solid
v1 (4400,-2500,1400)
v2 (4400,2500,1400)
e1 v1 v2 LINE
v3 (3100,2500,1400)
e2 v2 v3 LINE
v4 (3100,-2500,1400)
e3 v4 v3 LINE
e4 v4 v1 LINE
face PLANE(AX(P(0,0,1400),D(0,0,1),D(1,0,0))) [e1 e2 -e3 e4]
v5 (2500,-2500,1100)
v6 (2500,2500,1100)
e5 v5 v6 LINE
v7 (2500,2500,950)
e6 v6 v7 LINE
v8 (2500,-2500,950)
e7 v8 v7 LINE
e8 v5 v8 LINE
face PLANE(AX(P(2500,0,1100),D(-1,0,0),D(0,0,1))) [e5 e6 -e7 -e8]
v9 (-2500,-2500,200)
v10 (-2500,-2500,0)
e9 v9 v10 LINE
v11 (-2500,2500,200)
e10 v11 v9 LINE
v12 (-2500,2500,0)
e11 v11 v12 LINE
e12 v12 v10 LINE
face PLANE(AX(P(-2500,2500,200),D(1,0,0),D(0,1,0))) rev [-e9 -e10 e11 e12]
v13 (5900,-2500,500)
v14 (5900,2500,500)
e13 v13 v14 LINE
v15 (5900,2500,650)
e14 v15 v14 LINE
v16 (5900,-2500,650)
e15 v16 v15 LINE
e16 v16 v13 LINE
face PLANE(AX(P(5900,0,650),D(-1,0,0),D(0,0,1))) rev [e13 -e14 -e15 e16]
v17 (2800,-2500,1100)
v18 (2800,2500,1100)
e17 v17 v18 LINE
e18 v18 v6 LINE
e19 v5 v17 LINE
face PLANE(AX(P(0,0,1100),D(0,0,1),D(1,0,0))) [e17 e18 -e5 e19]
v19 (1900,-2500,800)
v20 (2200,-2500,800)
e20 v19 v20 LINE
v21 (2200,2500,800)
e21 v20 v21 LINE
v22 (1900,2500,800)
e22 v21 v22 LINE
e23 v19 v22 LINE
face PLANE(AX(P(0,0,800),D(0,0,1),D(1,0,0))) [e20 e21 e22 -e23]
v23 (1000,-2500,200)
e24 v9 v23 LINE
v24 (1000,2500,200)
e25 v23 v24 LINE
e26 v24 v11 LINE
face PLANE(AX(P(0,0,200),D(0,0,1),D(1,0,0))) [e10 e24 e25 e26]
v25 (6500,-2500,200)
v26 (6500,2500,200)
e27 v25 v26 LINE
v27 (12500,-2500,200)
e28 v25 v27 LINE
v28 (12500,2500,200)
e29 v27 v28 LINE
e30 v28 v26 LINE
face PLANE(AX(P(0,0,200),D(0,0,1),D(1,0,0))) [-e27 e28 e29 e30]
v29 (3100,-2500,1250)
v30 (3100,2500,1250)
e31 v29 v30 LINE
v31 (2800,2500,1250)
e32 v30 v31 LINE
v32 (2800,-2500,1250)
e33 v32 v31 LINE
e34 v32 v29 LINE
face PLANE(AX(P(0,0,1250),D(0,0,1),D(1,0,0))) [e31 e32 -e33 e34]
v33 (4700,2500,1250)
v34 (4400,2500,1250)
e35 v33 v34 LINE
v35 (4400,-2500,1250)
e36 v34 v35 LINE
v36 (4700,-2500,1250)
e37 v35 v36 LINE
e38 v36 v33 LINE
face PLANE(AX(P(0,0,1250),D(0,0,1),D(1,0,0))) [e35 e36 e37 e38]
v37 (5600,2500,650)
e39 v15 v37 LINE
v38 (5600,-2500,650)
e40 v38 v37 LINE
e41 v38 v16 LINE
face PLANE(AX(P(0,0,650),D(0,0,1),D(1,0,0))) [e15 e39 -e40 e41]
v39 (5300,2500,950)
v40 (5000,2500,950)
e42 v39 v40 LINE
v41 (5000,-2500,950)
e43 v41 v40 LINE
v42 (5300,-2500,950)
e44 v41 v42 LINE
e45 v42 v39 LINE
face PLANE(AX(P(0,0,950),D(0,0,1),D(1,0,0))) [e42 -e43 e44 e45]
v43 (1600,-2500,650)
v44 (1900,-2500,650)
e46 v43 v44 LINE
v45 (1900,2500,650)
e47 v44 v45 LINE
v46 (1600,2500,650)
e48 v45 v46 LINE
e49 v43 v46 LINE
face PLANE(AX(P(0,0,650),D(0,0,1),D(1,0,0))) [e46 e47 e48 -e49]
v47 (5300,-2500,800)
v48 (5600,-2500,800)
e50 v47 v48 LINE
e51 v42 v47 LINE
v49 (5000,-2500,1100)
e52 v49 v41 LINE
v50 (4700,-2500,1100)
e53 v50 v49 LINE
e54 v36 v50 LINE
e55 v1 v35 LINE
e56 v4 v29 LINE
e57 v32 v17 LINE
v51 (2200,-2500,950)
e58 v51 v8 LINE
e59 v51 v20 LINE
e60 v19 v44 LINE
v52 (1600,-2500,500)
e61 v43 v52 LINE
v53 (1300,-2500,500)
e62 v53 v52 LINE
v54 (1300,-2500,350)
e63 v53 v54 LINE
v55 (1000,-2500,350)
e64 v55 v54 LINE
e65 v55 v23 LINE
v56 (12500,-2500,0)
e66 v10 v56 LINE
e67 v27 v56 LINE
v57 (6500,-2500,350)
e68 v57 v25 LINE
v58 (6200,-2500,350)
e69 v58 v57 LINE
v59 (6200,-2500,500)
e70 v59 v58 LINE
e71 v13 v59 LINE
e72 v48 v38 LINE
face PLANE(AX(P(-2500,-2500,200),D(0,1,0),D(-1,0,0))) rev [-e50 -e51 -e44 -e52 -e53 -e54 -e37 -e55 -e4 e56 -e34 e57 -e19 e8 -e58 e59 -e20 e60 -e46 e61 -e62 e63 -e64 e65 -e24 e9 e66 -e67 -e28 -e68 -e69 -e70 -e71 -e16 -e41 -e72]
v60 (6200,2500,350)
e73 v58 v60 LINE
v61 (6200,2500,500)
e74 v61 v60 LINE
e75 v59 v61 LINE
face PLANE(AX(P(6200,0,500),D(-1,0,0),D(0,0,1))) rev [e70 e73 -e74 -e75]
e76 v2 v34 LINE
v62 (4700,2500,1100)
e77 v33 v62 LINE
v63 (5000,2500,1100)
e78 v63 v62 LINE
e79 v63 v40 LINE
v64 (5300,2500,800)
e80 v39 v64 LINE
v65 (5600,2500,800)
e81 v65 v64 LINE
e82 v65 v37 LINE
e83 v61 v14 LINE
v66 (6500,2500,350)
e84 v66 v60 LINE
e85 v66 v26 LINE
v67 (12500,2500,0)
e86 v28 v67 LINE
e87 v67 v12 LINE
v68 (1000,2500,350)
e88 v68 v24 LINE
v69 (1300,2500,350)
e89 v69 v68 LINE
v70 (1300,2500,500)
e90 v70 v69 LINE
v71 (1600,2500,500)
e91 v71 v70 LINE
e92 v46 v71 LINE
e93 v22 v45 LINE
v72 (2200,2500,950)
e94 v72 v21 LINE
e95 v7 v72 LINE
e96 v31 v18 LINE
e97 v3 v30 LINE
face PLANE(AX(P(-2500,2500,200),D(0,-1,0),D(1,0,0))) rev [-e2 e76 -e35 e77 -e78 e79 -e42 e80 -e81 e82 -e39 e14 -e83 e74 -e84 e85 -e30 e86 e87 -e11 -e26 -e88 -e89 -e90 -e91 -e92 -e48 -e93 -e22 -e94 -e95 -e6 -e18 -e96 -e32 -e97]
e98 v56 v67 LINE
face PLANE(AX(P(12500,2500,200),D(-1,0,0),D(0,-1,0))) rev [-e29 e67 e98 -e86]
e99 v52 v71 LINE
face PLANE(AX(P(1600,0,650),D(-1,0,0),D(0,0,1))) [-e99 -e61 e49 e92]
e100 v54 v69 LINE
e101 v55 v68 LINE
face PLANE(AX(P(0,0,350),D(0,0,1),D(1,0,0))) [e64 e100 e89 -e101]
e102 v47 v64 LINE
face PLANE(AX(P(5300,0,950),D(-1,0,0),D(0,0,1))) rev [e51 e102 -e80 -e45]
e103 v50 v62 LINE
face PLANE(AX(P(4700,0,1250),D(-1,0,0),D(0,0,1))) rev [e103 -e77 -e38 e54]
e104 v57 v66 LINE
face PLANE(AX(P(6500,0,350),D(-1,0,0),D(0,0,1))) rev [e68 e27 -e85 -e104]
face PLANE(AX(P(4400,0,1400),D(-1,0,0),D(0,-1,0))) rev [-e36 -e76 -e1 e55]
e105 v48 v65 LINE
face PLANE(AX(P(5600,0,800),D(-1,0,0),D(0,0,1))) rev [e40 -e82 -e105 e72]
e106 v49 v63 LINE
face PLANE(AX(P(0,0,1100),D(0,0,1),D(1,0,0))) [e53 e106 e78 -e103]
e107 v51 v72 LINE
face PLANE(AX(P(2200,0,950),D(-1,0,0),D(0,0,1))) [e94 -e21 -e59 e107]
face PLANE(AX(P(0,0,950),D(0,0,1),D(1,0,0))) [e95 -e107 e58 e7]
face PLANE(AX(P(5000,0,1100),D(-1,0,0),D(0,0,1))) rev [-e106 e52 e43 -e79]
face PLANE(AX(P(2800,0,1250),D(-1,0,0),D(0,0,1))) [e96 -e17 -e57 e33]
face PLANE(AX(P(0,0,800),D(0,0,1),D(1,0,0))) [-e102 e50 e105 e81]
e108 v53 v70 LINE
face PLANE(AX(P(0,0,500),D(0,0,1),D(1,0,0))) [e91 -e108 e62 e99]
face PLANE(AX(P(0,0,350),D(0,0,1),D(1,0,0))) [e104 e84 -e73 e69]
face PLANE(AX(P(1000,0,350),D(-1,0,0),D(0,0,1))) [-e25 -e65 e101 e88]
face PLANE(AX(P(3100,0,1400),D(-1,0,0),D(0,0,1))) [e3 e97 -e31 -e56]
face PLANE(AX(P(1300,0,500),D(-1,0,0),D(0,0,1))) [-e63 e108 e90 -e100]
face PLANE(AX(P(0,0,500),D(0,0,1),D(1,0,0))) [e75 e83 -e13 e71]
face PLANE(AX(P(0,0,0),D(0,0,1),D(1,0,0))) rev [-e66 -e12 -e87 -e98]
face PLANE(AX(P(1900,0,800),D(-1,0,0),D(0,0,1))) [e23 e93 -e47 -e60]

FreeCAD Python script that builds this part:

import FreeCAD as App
import Part
import Sketcher
Q = App.Units.Quantity


def add_polygon(sketch, points):
    """Adds a closed chain of lines whose ends are joined by coincident constraints."""
    first, n = sketch.GeometryCount, len(points)
    for a, b in zip(points, points[1:] + points[:1]):
        sketch.addGeometry(Part.LineSegment(App.Vector(*a, 0), App.Vector(*b, 0)), False)
    for i in range(n):
        sketch.addConstraint(Sketcher.Constraint("Coincident", first + i, 2, first + (i + 1) % n, 1))

doc = App.newDocument("Part")
body = doc.addObject("PartDesign::Body", "Body")

# Sketch on XY plane
sketch1 = doc.addObject("Sketcher::SketchObject", "Sketch")
body.addObject(sketch1)
sketch1.AttachmentSupport = (doc.XY_Plane, [""])
sketch1.MapMode = "FlatFace"
add_polygon(sketch1, [(-2500, 2500), (-2500, -2500), (12500, -2500), (12500, 2500)])  # lines 0-3
sketch1.addConstraint(Sketcher.Constraint("Vertical", 0))
sketch1.addConstraint(Sketcher.Constraint("Horizontal", 1))
sketch1.addConstraint(Sketcher.Constraint("Vertical", 2))
sketch1.addConstraint(Sketcher.Constraint("Horizontal", 3))
sketch1.addConstraint(Sketcher.Constraint("DistanceX", 1, 1, 1, 2, Q("15000 mm")))
sketch1.addConstraint(Sketcher.Constraint("DistanceY", 0, 2, 0, 1, Q("5000 mm")))
sketch1.addConstraint(Sketcher.Constraint("DistanceX", 0, 2, -1, 1, Q("2500 mm")))
sketch1.addConstraint(Sketcher.Constraint("DistanceY", 0, 2, -1, 1, Q("2500 mm")))
pad1 = doc.addObject("PartDesign::Pad", "Pad")
body.addObject(pad1)
pad1.Profile = sketch1
pad1.Length = 200

# Sketch on XY plane
sketch2 = doc.addObject("Sketcher::SketchObject", "Sketch001")
body.addObject(sketch2)
sketch2.AttachmentSupport = (doc.XY_Plane, [""])
sketch2.MapMode = "FlatFace"
sketch2.AttachmentOffset = App.Placement(App.Vector(0, 0, 200), App.Rotation())
add_polygon(sketch2, [(1000, 2500), (1000, -2500), (1300, -2500), (1300, 2500)])  # lines 0-3
sketch2.addConstraint(Sketcher.Constraint("Vertical", 0))
sketch2.addConstraint(Sketcher.Constraint("Horizontal", 1))
sketch2.addConstraint(Sketcher.Constraint("Vertical", 2))
sketch2.addConstraint(Sketcher.Constraint("Horizontal", 3))
sketch2.addConstraint(Sketcher.Constraint("DistanceX", 1, 1, 1, 2, Q("300 mm")))
sketch2.addConstraint(Sketcher.Constraint("DistanceY", 0, 2, 0, 1, Q("5000 mm")))
sketch2.addConstraint(Sketcher.Constraint("DistanceX", -1, 1, 0, 2, Q("1000 mm")))
sketch2.addConstraint(Sketcher.Constraint("DistanceY", 0, 2, -1, 1, Q("2500 mm")))
pad2 = doc.addObject("PartDesign::Pad", "Pad001")
body.addObject(pad2)
pad2.Profile = sketch2
pad2.Length = 150

# Sketch on XY plane
sketch3 = doc.addObject("Sketcher::SketchObject", "Sketch002")
body.addObject(sketch3)
sketch3.AttachmentSupport = (doc.XY_Plane, [""])
sketch3.MapMode = "FlatFace"
sketch3.AttachmentOffset = App.Placement(App.Vector(0, 0, 200), App.Rotation())
add_polygon(sketch3, [(1300, 2500), (1300, -2500), (1600, -2500), (1600, 2500)])  # lines 0-3
sketch3.addConstraint(Sketcher.Constraint("Vertical", 0))
sketch3.addConstraint(Sketcher.Constraint("Horizontal", 1))
sketch3.addConstraint(Sketcher.Constraint("Vertical", 2))
sketch3.addConstraint(Sketcher.Constraint("Horizontal", 3))
sketch3.addConstraint(Sketcher.Constraint("DistanceX", 1, 1, 1, 2, Q("300 mm")))
sketch3.addConstraint(Sketcher.Constraint("DistanceY", 0, 2, 0, 1, Q("5000 mm")))
sketch3.addConstraint(Sketcher.Constraint("DistanceX", -1, 1, 0, 2, Q("1300 mm")))
sketch3.addConstraint(Sketcher.Constraint("DistanceY", 0, 2, -1, 1, Q("2500 mm")))
pad3 = doc.addObject("PartDesign::Pad", "Pad002")
body.addObject(pad3)
pad3.Profile = sketch3
pad3.Length = 300

# Sketch on XY plane
sketch4 = doc.addObject("Sketcher::SketchObject", "Sketch003")
body.addObject(sketch4)
sketch4.AttachmentSupport = (doc.XY_Plane, [""])
sketch4.MapMode = "FlatFace"
sketch4.AttachmentOffset = App.Placement(App.Vector(0, 0, 200), App.Rotation())
add_polygon(sketch4, [(1600, 2500), (1600, -2500), (1900, -2500), (1900, 2500)])  # lines 0-3
sketch4.addConstraint(Sketcher.Constraint("Vertical", 0))
sketch4.addConstraint(Sketcher.Constraint("Horizontal", 1))
sketch4.addConstraint(Sketcher.Constraint("Vertical", 2))
sketch4.addConstraint(Sketcher.Constraint("Horizontal", 3))
sketch4.addConstraint(Sketcher.Constraint("DistanceX", 1, 1, 1, 2, Q("300 mm")))
sketch4.addConstraint(Sketcher.Constraint("DistanceY", 0, 2, 0, 1, Q("5000 mm")))
sketch4.addConstraint(Sketcher.Constraint("DistanceX", -1, 1, 0, 2, Q("1600 mm")))
sketch4.addConstraint(Sketcher.Constraint("DistanceY", 0, 2, -1, 1, Q("2500 mm")))
pad4 = doc.addObject("PartDesign::Pad", "Pad003")
body.addObject(pad4)
pad4.Profile = sketch4
pad4.Length = 450

# Sketch on XY plane
sketch5 = doc.addObject("Sketcher::SketchObject", "Sketch004")
body.addObject(sketch5)
sketch5.AttachmentSupport = (doc.XY_Plane, [""])
sketch5.MapMode = "FlatFace"
sketch5.AttachmentOffset = App.Placement(App.Vector(0, 0, 200), App.Rotation())
add_polygon(sketch5, [(1900, 2500), (1900, -2500), (2200, -2500), (2200, 2500)])  # lines 0-3
sketch5.addConstraint(Sketcher.Constraint("Vertical", 0))
sketch5.addConstraint(Sketcher.Constraint("Horizontal", 1))
sketch5.addConstraint(Sketcher.Constraint("Vertical", 2))
sketch5.addConstraint(Sketcher.Constraint("Horizontal", 3))
sketch5.addConstraint(Sketcher.Constraint("DistanceX", 1, 1, 1, 2, Q("300 mm")))
sketch5.addConstraint(Sketcher.Constraint("DistanceY", 0, 2, 0, 1, Q("5000 mm")))
sketch5.addConstraint(Sketcher.Constraint("DistanceX", -1, 1, 0, 2, Q("1900 mm")))
sketch5.addConstraint(Sketcher.Constraint("DistanceY", 0, 2, -1, 1, Q("2500 mm")))
pad5 = doc.addObject("PartDesign::Pad", "Pad004")
body.addObject(pad5)
pad5.Profile = sketch5
pad5.Length = 600

# Sketch on XY plane
sketch6 = doc.addObject("Sketcher::SketchObject", "Sketch005")
body.addObject(sketch6)
sketch6.AttachmentSupport = (doc.XY_Plane, [""])
sketch6.MapMode = "FlatFace"
sketch6.AttachmentOffset = App.Placement(App.Vector(0, 0, 200), App.Rotation())
add_polygon(sketch6, [(2200, 2500), (2200, -2500), (2500, -2500), (2500, 2500)])  # lines 0-3
sketch6.addConstraint(Sketcher.Constraint("Vertical", 0))
sketch6.addConstraint(Sketcher.Constraint("Horizontal", 1))
sketch6.addConstraint(Sketcher.Constraint("Vertical", 2))
sketch6.addConstraint(Sketcher.Constraint("Horizontal", 3))
sketch6.addConstraint(Sketcher.Constraint("DistanceX", 1, 1, 1, 2, Q("300 mm")))
sketch6.addConstraint(Sketcher.Constraint("DistanceY", 0, 2, 0, 1, Q("5000 mm")))
sketch6.addConstraint(Sketcher.Constraint("DistanceX", -1, 1, 0, 2, Q("2200 mm")))
sketch6.addConstraint(Sketcher.Constraint("DistanceY", 0, 2, -1, 1, Q("2500 mm")))
pad6 = doc.addObject("PartDesign::Pad", "Pad005")
body.addObject(pad6)
pad6.Profile = sketch6
pad6.Length = 750

# Sketch on XY plane
sketch7 = doc.addObject("Sketcher::SketchObject", "Sketch006")
body.addObject(sketch7)
sketch7.AttachmentSupport = (doc.XY_Plane, [""])
sketch7.MapMode = "FlatFace"
sketch7.AttachmentOffset = App.Placement(App.Vector(0, 0, 200), App.Rotation())
add_polygon(sketch7, [(2500, 2500), (2500, -2500), (2800, -2500), (2800, 2500)])  # lines 0-3
sketch7.addConstraint(Sketcher.Constraint("Vertical", 0))
sketch7.addConstraint(Sketcher.Constraint("Horizontal", 1))
sketch7.addConstraint(Sketcher.Constraint("Vertical", 2))
sketch7.addConstraint(Sketcher.Constraint("Horizontal", 3))
sketch7.addConstraint(Sketcher.Constraint("DistanceX", 1, 1, 1, 2, Q("300 mm")))
sketch7.addConstraint(Sketcher.Constraint("DistanceY", 0, 2, 0, 1, Q("5000 mm")))
sketch7.addConstraint(Sketcher.Constraint("DistanceX", -1, 1, 0, 2, Q("2500 mm")))
sketch7.addConstraint(Sketcher.Constraint("DistanceY", 0, 2, -1, 1, Q("2500 mm")))
pad7 = doc.addObject("PartDesign::Pad", "Pad006")
body.addObject(pad7)
pad7.Profile = sketch7
pad7.Length = 900

# Sketch on XY plane
sketch8 = doc.addObject("Sketcher::SketchObject", "Sketch007")
body.addObject(sketch8)
sketch8.AttachmentSupport = (doc.XY_Plane, [""])
sketch8.MapMode = "FlatFace"
sketch8.AttachmentOffset = App.Placement(App.Vector(0, 0, 200), App.Rotation())
add_polygon(sketch8, [(2800, 2500), (2800, -2500), (3100, -2500), (3100, 2500)])  # lines 0-3
sketch8.addConstraint(Sketcher.Constraint("Vertical", 0))
sketch8.addConstraint(Sketcher.Constraint("Horizontal", 1))
sketch8.addConstraint(Sketcher.Constraint("Vertical", 2))
sketch8.addConstraint(Sketcher.Constraint("Horizontal", 3))
sketch8.addConstraint(Sketcher.Constraint("DistanceX", 1, 1, 1, 2, Q("300 mm")))
sketch8.addConstraint(Sketcher.Constraint("DistanceY", 0, 2, 0, 1, Q("5000 mm")))
sketch8.addConstraint(Sketcher.Constraint("DistanceX", -1, 1, 0, 2, Q("2800 mm")))
sketch8.addConstraint(Sketcher.Constraint("DistanceY", 0, 2, -1, 1, Q("2500 mm")))
pad8 = doc.addObject("PartDesign::Pad", "Pad007")
body.addObject(pad8)
pad8.Profile = sketch8
pad8.Length = 1050

# Sketch on XY plane
sketch9 = doc.addObject("Sketcher::SketchObject", "Sketch008")
body.addObject(sketch9)
sketch9.AttachmentSupport = (doc.XY_Plane, [""])
sketch9.MapMode = "FlatFace"
sketch9.AttachmentOffset = App.Placement(App.Vector(0, 0, 200), App.Rotation())
add_polygon(sketch9, [(3100, 2500), (3100, -2500), (3400, -2500), (3400, 2500)])  # lines 0-3
sketch9.addConstraint(Sketcher.Constraint("Vertical", 0))
sketch9.addConstraint(Sketcher.Constraint("Horizontal", 1))
sketch9.addConstraint(Sketcher.Constraint("Vertical", 2))
sketch9.addConstraint(Sketcher.Constraint("Horizontal", 3))
sketch9.addConstraint(Sketcher.Constraint("DistanceX", 1, 1, 1, 2, Q("300 mm")))
sketch9.addConstraint(Sketcher.Constraint("DistanceY", 0, 2, 0, 1, Q("5000 mm")))
sketch9.addConstraint(Sketcher.Constraint("DistanceX", -1, 1, 0, 2, Q("3100 mm")))
sketch9.addConstraint(Sketcher.Constraint("DistanceY", 0, 2, -1, 1, Q("2500 mm")))
pad9 = doc.addObject("PartDesign::Pad", "Pad008")
body.addObject(pad9)
pad9.Profile = sketch9
pad9.Length = 1200

# Sketch on XY plane
sketch10 = doc.addObject("Sketcher::SketchObject", "Sketch009")
body.addObject(sketch10)
sketch10.AttachmentSupport = (doc.XY_Plane, [""])
sketch10.MapMode = "FlatFace"
sketch10.AttachmentOffset = App.Placement(App.Vector(0, 0, 200), App.Rotation())
add_polygon(sketch10, [(3400, 2500), (3400, -2500), (4400, -2500), (4400, 2500)])  # lines 0-3
sketch10.addConstraint(Sketcher.Constraint("Vertical", 0))
sketch10.addConstraint(Sketcher.Constraint("Horizontal", 1))
sketch10.addConstraint(Sketcher.Constraint("Vertical", 2))
sketch10.addConstraint(Sketcher.Constraint("Horizontal", 3))
sketch10.addConstraint(Sketcher.Constraint("DistanceX", 1, 1, 1, 2, Q("1000 mm")))
sketch10.addConstraint(Sketcher.Constraint("DistanceY", 0, 2, 0, 1, Q("5000 mm")))
sketch10.addConstraint(Sketcher.Constraint("DistanceX", -1, 1, 0, 2, Q("3400 mm")))
sketch10.addConstraint(Sketcher.Constraint("DistanceY", 0, 2, -1, 1, Q("2500 mm")))
pad10 = doc.addObject("PartDesign::Pad", "Pad009")
body.addObject(pad10)
pad10.Profile = sketch10
pad10.Length = 1200

# Sketch on XY plane
sketch11 = doc.addObject("Sketcher::SketchObject", "Sketch010")
body.addObject(sketch11)
sketch11.AttachmentSupport = (doc.XY_Plane, [""])
sketch11.MapMode = "FlatFace"
sketch11.AttachmentOffset = App.Placement(App.Vector(0, 0, 200), App.Rotation())
add_polygon(sketch11, [(4400, 2500), (4400, -2500), (4700, -2500), (4700, 2500)])  # lines 0-3
sketch11.addConstraint(Sketcher.Constraint("Vertical", 0))
sketch11.addConstraint(Sketcher.Constraint("Horizontal", 1))
sketch11.addConstraint(Sketcher.Constraint("Vertical", 2))
sketch11.addConstraint(Sketcher.Constraint("Horizontal", 3))
sketch11.addConstraint(Sketcher.Constraint("DistanceX", 1, 1, 1, 2, Q("300 mm")))
sketch11.addConstraint(Sketcher.Constraint("DistanceY", 0, 2, 0, 1, Q("5000 mm")))
sketch11.addConstraint(Sketcher.Constraint("DistanceX", -1, 1, 0, 2, Q("4400 mm")))
sketch11.addConstraint(Sketcher.Constraint("DistanceY", 0, 2, -1, 1, Q("2500 mm")))
pad11 = doc.addObject("PartDesign::Pad", "Pad010")
body.addObject(pad11)
pad11.Profile = sketch11
pad11.Length = 1050

# Sketch on XY plane
sketch12 = doc.addObject("Sketcher::SketchObject", "Sketch011")
body.addObject(sketch12)
sketch12.AttachmentSupport = (doc.XY_Plane, [""])
sketch12.MapMode = "FlatFace"
sketch12.AttachmentOffset = App.Placement(App.Vector(0, 0, 200), App.Rotation())
add_polygon(sketch12, [(4700, 2500), (4700, -2500), (5000, -2500), (5000, 2500)])  # lines 0-3
sketch12.addConstraint(Sketcher.Constraint("Vertical", 0))
sketch12.addConstraint(Sketcher.Constraint("Horizontal", 1))
sketch12.addConstraint(Sketcher.Constraint("Vertical", 2))
sketch12.addConstraint(Sketcher.Constraint("Horizontal", 3))
sketch12.addConstraint(Sketcher.Constraint("DistanceX", 1, 1, 1, 2, Q("300 mm")))
sketch12.addConstraint(Sketcher.Constraint("DistanceY", 0, 2, 0, 1, Q("5000 mm")))
sketch12.addConstraint(Sketcher.Constraint("DistanceX", -1, 1, 0, 2, Q("4700 mm")))
sketch12.addConstraint(Sketcher.Constraint("DistanceY", 0, 2, -1, 1, Q("2500 mm")))
pad12 = doc.addObject("PartDesign::Pad", "Pad011")
body.addObject(pad12)
pad12.Profile = sketch12
pad12.Length = 900

# Sketch on XY plane
sketch13 = doc.addObject("Sketcher::SketchObject", "Sketch012")
body.addObject(sketch13)
sketch13.AttachmentSupport = (doc.XY_Plane, [""])
sketch13.MapMode = "FlatFace"
sketch13.AttachmentOffset = App.Placement(App.Vector(0, 0, 200), App.Rotation())
add_polygon(sketch13, [(5000, 2500), (5000, -2500), (5300, -2500), (5300, 2500)])  # lines 0-3
sketch13.addConstraint(Sketcher.Constraint("Vertical", 0))
sketch13.addConstraint(Sketcher.Constraint("Horizontal", 1))
sketch13.addConstraint(Sketcher.Constraint("Vertical", 2))
sketch13.addConstraint(Sketcher.Constraint("Horizontal", 3))
sketch13.addConstraint(Sketcher.Constraint("DistanceX", 1, 1, 1, 2, Q("300 mm")))
sketch13.addConstraint(Sketcher.Constraint("DistanceY", 0, 2, 0, 1, Q("5000 mm")))
sketch13.addConstraint(Sketcher.Constraint("DistanceX", -1, 1, 0, 2, Q("5000 mm")))
sketch13.addConstraint(Sketcher.Constraint("DistanceY", 0, 2, -1, 1, Q("2500 mm")))
pad13 = doc.addObject("PartDesign::Pad", "Pad012")
body.addObject(pad13)
pad13.Profile = sketch13
pad13.Length = 750

# Sketch on XY plane
sketch14 = doc.addObject("Sketcher::SketchObject", "Sketch013")
body.addObject(sketch14)
sketch14.AttachmentSupport = (doc.XY_Plane, [""])
sketch14.MapMode = "FlatFace"
sketch14.AttachmentOffset = App.Placement(App.Vector(0, 0, 200), App.Rotation())
add_polygon(sketch14, [(5300, 2500), (5300, -2500), (5600, -2500), (5600, 2500)])  # lines 0-3
sketch14.addConstraint(Sketcher.Constraint("Vertical", 0))
sketch14.addConstraint(Sketcher.Constraint("Horizontal", 1))
sketch14.addConstraint(Sketcher.Constraint("Vertical", 2))
sketch14.addConstraint(Sketcher.Constraint("Horizontal", 3))
sketch14.addConstraint(Sketcher.Constraint("DistanceX", 1, 1, 1, 2, Q("300 mm")))
sketch14.addConstraint(Sketcher.Constraint("DistanceY", 0, 2, 0, 1, Q("5000 mm")))
sketch14.addConstraint(Sketcher.Constraint("DistanceX", -1, 1, 0, 2, Q("5300 mm")))
sketch14.addConstraint(Sketcher.Constraint("DistanceY", 0, 2, -1, 1, Q("2500 mm")))
pad14 = doc.addObject("PartDesign::Pad", "Pad013")
body.addObject(pad14)
pad14.Profile = sketch14
pad14.Length = 600

# Sketch on XY plane
sketch15 = doc.addObject("Sketcher::SketchObject", "Sketch014")
body.addObject(sketch15)
sketch15.AttachmentSupport = (doc.XY_Plane, [""])
sketch15.MapMode = "FlatFace"
sketch15.AttachmentOffset = App.Placement(App.Vector(0, 0, 200), App.Rotation())
add_polygon(sketch15, [(5600, 2500), (5600, -2500), (5900, -2500), (5900, 2500)])  # lines 0-3
sketch15.addConstraint(Sketcher.Constraint("Vertical", 0))
sketch15.addConstraint(Sketcher.Constraint("Horizontal", 1))
sketch15.addConstraint(Sketcher.Constraint("Vertical", 2))
sketch15.addConstraint(Sketcher.Constraint("Horizontal", 3))
sketch15.addConstraint(Sketcher.Constraint("DistanceX", 1, 1, 1, 2, Q("300 mm")))
sketch15.addConstraint(Sketcher.Constraint("DistanceY", 0, 2, 0, 1, Q("5000 mm")))
sketch15.addConstraint(Sketcher.Constraint("DistanceX", -1, 1, 0, 2, Q("5600 mm")))
sketch15.addConstraint(Sketcher.Constraint("DistanceY", 0, 2, -1, 1, Q("2500 mm")))
pad15 = doc.addObject("PartDesign::Pad", "Pad014")
body.addObject(pad15)
pad15.Profile = sketch15
pad15.Length = 450

# Sketch on XY plane
sketch16 = doc.addObject("Sketcher::SketchObject", "Sketch015")
body.addObject(sketch16)
sketch16.AttachmentSupport = (doc.XY_Plane, [""])
sketch16.MapMode = "FlatFace"
sketch16.AttachmentOffset = App.Placement(App.Vector(0, 0, 200), App.Rotation())
add_polygon(sketch16, [(5900, 2500), (5900, -2500), (6200, -2500), (6200, 2500)])  # lines 0-3
sketch16.addConstraint(Sketcher.Constraint("Vertical", 0))
sketch16.addConstraint(Sketcher.Constraint("Horizontal", 1))
sketch16.addConstraint(Sketcher.Constraint("Vertical", 2))
sketch16.addConstraint(Sketcher.Constraint("Horizontal", 3))
sketch16.addConstraint(Sketcher.Constraint("DistanceX", 1, 1, 1, 2, Q("300 mm")))
sketch16.addConstraint(Sketcher.Constraint("DistanceY", 0, 2, 0, 1, Q("5000 mm")))
sketch16.addConstraint(Sketcher.Constraint("DistanceX", -1, 1, 0, 2, Q("5900 mm")))
sketch16.addConstraint(Sketcher.Constraint("DistanceY", 0, 2, -1, 1, Q("2500 mm")))
pad16 = doc.addObject("PartDesign::Pad", "Pad015")
body.addObject(pad16)
pad16.Profile = sketch16
pad16.Length = 300

# Sketch on XY plane
sketch17 = doc.addObject("Sketcher::SketchObject", "Sketch016")
body.addObject(sketch17)
sketch17.AttachmentSupport = (doc.XY_Plane, [""])
sketch17.MapMode = "FlatFace"
sketch17.AttachmentOffset = App.Placement(App.Vector(0, 0, 200), App.Rotation())
add_polygon(sketch17, [(6200, 2500), (6200, -2500), (6500, -2500), (6500, 2500)])  # lines 0-3
sketch17.addConstraint(Sketcher.Constraint("Vertical", 0))
sketch17.addConstraint(Sketcher.Constraint("Horizontal", 1))
sketch17.addConstraint(Sketcher.Constraint("Vertical", 2))
sketch17.addConstraint(Sketcher.Constraint("Horizontal", 3))
sketch17.addConstraint(Sketcher.Constraint("DistanceX", 1, 1, 1, 2, Q("300 mm")))
sketch17.addConstraint(Sketcher.Constraint("DistanceY", 0, 2, 0, 1, Q("5000 mm")))
sketch17.addConstraint(Sketcher.Constraint("DistanceX", -1, 1, 0, 2, Q("6200 mm")))
sketch17.addConstraint(Sketcher.Constraint("DistanceY", 0, 2, -1, 1, Q("2500 mm")))
pad17 = doc.addObject("PartDesign::Pad", "Pad016")
body.addObject(pad17)
pad17.Profile = sketch17
pad17.Length = 150

doc.recompute()
